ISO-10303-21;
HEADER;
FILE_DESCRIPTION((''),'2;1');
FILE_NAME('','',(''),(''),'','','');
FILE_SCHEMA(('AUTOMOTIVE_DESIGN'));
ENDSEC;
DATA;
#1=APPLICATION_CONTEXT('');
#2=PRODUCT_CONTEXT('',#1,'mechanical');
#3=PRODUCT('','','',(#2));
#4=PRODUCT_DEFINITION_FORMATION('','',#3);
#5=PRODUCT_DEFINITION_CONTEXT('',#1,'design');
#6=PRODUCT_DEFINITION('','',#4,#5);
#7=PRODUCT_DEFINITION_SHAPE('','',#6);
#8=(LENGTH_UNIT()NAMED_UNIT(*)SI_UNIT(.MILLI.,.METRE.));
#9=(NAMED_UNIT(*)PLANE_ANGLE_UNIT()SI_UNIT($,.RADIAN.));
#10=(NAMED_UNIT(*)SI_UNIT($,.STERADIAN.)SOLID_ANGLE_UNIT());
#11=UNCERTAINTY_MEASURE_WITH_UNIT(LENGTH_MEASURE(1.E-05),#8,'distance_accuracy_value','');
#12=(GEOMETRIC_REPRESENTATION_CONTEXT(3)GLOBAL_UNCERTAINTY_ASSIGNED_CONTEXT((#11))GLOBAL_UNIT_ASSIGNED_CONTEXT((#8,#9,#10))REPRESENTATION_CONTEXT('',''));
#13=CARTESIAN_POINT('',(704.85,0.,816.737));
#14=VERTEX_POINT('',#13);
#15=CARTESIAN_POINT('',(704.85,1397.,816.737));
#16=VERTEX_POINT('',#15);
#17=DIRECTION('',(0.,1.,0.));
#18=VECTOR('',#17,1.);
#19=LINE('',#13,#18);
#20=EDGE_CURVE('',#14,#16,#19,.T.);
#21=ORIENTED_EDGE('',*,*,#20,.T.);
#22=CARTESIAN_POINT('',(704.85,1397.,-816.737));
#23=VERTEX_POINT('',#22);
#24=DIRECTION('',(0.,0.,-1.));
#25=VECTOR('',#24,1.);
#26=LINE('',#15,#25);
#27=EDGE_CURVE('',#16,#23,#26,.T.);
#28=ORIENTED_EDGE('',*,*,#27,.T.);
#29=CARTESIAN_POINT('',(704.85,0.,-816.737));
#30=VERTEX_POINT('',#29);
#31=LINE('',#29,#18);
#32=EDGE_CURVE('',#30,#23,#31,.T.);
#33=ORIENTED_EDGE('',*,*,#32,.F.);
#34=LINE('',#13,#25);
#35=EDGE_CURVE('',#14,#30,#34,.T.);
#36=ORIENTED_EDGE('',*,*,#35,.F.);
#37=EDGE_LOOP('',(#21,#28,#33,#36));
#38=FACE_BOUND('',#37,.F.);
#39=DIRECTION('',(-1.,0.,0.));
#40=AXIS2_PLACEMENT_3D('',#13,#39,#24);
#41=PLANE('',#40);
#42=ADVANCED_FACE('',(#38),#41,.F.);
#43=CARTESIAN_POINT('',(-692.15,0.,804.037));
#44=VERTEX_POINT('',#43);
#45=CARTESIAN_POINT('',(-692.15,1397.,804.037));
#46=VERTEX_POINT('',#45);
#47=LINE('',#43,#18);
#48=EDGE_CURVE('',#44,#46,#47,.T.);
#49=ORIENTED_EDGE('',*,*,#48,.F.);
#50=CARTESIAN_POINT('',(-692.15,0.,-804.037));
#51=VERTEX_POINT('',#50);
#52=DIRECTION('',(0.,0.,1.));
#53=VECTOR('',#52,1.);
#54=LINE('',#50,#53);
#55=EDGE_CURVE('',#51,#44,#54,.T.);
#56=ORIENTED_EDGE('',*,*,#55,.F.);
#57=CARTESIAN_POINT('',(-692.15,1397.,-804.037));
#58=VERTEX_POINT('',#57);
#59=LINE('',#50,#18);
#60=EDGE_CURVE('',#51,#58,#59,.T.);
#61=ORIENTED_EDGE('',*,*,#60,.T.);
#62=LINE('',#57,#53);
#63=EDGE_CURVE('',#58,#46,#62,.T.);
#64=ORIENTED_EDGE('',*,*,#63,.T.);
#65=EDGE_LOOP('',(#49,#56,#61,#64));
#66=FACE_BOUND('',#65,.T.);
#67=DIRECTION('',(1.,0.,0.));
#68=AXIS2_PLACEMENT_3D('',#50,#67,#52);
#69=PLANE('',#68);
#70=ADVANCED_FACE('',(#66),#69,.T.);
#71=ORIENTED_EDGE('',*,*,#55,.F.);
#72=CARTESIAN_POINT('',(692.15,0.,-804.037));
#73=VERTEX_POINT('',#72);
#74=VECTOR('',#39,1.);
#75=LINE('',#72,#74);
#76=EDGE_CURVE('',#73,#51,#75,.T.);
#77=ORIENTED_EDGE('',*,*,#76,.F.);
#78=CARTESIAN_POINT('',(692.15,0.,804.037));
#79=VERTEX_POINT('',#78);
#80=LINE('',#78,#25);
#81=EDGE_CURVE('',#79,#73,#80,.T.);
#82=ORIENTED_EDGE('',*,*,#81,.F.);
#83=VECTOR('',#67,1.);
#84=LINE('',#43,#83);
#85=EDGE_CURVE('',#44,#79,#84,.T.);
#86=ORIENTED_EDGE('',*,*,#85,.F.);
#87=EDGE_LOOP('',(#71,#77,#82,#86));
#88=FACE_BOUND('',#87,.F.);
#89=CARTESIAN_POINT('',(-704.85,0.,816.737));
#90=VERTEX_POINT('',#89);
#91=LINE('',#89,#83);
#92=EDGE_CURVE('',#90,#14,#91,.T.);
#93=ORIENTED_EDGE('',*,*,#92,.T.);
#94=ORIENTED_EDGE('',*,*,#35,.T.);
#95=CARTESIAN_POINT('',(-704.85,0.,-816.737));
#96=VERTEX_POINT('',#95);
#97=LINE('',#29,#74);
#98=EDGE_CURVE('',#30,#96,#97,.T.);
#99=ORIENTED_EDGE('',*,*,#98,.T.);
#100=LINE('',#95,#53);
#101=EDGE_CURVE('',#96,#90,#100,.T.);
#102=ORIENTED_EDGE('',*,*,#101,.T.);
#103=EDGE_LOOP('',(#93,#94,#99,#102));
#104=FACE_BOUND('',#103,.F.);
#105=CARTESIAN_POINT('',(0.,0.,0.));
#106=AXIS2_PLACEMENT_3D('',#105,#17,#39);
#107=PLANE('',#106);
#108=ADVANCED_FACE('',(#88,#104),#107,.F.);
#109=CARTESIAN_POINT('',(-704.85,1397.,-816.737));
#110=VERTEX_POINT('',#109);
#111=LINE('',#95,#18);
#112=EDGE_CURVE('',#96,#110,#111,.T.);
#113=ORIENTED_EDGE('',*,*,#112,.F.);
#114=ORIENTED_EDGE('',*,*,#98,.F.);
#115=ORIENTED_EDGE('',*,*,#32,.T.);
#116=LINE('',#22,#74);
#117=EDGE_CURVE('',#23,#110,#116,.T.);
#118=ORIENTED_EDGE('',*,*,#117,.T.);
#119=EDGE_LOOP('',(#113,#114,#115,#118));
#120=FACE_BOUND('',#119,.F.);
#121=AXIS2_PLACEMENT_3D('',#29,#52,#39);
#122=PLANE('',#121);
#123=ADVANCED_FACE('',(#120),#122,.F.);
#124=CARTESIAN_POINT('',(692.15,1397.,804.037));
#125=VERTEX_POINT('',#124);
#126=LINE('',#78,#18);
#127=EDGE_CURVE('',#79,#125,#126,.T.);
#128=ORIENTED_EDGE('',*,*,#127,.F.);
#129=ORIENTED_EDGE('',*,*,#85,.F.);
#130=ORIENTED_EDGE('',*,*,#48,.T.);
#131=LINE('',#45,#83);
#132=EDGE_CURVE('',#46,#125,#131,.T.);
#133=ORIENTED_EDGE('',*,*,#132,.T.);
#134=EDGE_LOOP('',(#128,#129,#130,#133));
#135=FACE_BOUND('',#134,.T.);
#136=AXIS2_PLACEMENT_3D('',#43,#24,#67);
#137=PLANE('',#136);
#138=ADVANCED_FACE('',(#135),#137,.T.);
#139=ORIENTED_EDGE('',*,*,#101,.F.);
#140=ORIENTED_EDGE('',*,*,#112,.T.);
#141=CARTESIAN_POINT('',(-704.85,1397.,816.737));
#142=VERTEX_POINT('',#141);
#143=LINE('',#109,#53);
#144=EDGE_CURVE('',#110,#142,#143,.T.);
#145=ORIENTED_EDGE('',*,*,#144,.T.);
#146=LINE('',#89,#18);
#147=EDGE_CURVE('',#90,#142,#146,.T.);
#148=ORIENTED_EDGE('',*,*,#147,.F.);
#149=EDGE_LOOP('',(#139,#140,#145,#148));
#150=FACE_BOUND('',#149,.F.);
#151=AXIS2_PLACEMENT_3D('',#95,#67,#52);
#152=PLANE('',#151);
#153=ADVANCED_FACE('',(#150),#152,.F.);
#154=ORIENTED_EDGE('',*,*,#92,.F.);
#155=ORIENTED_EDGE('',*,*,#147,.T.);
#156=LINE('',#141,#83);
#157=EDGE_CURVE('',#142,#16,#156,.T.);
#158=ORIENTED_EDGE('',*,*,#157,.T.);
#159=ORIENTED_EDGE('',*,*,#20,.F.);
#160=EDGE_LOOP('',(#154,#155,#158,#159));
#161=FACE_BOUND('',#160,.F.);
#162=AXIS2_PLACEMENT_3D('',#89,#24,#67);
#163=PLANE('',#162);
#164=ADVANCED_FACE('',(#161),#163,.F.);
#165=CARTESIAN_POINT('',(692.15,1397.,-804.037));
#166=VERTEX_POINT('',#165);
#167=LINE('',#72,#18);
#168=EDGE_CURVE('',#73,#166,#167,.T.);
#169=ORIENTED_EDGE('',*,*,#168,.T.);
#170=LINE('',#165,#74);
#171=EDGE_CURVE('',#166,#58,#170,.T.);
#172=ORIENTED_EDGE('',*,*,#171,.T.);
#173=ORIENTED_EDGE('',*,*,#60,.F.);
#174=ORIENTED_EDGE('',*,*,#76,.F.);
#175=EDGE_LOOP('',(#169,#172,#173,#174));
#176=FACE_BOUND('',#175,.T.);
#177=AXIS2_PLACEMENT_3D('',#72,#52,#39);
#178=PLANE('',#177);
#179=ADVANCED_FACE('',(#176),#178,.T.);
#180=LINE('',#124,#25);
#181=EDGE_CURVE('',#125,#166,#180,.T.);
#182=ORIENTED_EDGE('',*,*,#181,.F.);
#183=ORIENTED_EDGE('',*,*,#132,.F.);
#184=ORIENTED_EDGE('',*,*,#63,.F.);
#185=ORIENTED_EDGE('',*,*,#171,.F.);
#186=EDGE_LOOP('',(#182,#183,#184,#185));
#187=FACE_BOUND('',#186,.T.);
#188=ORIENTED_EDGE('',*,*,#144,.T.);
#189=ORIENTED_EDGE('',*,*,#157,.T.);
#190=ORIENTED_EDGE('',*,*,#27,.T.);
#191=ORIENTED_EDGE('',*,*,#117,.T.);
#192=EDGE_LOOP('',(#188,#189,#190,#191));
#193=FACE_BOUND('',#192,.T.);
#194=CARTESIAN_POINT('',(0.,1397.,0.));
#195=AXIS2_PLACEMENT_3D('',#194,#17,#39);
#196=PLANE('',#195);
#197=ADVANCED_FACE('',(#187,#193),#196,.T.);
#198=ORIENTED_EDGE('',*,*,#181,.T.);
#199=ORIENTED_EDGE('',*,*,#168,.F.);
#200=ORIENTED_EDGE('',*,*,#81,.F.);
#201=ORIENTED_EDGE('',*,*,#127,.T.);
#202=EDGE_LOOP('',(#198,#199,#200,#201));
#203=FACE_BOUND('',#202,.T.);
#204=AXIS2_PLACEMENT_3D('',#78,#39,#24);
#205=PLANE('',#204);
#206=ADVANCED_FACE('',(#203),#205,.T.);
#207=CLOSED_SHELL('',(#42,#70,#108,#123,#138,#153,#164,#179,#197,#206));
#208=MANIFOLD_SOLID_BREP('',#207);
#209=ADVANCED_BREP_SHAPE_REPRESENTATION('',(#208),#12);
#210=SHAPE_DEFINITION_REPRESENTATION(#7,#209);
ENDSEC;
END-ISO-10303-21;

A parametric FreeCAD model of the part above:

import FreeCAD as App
import Part
import Sketcher
Q = App.Units.Quantity

doc = App.newDocument("Part")
body = doc.addObject("PartDesign::Body", "Body")

# Sketch on XZ plane
sketch1 = body.newObject("Sketcher::SketchObject", "Sketch")
sketch1.AttachmentSupport = (doc.getObject("XZ_Plane"), [""])
sketch1.MapMode = "FlatFace"
sketch1.addGeometry([
    Part.LineSegment(App.Vector(-705, -817, 0), App.Vector(-705, 817, 0)),  # 0
    Part.LineSegment(App.Vector(-705, 817, 0), App.Vector(705, 817, 0)),  # 1
    Part.LineSegment(App.Vector(705, 817, 0), App.Vector(705, -817, 0)),  # 2
    Part.LineSegment(App.Vector(705, -817, 0), App.Vector(-705, -817, 0)),  # 3
    Part.LineSegment(App.Vector(692, 804, 0), App.Vector(-692, 804, 0)),  # 4
    Part.LineSegment(App.Vector(-692, 804, 0), App.Vector(-692, -804, 0)),  # 5
    Part.LineSegment(App.Vector(-692, -804, 0), App.Vector(692, -804, 0)),  # 6
    Part.LineSegment(App.Vector(692, -804, 0), App.Vector(692, 804, 0)),  # 7
], False)
sketch1.addConstraint([
    Sketcher.Constraint("Coincident", 0, 2, 1, 1),
    Sketcher.Constraint("Coincident", 1, 2, 2, 1),
    Sketcher.Constraint("Coincident", 2, 2, 3, 1),
    Sketcher.Constraint("Coincident", 3, 2, 0, 1),
    Sketcher.Constraint("Coincident", 4, 2, 5, 1),
    Sketcher.Constraint("Coincident", 5, 2, 6, 1),
    Sketcher.Constraint("Coincident", 6, 2, 7, 1),
    Sketcher.Constraint("Coincident", 7, 2, 4, 1),
    Sketcher.Constraint("Vertical", 0),
    Sketcher.Constraint("Horizontal", 1),
    Sketcher.Constraint("Vertical", 2),
    Sketcher.Constraint("Horizontal", 3),
    Sketcher.Constraint("Horizontal", 4),
    Sketcher.Constraint("Vertical", 5),
    Sketcher.Constraint("Horizontal", 6),
    Sketcher.Constraint("Vertical", 7),
    Sketcher.Constraint("Symmetric", 0, 2, 2, 2, -1, 1),
    Sketcher.Constraint("Symmetric", 4, 2, 6, 2, -1, 1),
    Sketcher.Constraint("DistanceX", 1, 1, 1, 2, Q("55.5 in")),
    Sketcher.Constraint("DistanceY", 0, 1, 0, 2, Q("64.31 in")),
    Sketcher.Constraint("DistanceX", 0, 2, 4, 2, Q("0.5 in")),
    Sketcher.Constraint("DistanceY", 4, 2, 0, 2, Q("0.5 in")),
])
pad1 = body.newObject("PartDesign::Pad", "Pad")
pad1.Profile = sketch1
pad1.Length = Q("55 in")
pad1.Reversed = True

doc.recompute()
